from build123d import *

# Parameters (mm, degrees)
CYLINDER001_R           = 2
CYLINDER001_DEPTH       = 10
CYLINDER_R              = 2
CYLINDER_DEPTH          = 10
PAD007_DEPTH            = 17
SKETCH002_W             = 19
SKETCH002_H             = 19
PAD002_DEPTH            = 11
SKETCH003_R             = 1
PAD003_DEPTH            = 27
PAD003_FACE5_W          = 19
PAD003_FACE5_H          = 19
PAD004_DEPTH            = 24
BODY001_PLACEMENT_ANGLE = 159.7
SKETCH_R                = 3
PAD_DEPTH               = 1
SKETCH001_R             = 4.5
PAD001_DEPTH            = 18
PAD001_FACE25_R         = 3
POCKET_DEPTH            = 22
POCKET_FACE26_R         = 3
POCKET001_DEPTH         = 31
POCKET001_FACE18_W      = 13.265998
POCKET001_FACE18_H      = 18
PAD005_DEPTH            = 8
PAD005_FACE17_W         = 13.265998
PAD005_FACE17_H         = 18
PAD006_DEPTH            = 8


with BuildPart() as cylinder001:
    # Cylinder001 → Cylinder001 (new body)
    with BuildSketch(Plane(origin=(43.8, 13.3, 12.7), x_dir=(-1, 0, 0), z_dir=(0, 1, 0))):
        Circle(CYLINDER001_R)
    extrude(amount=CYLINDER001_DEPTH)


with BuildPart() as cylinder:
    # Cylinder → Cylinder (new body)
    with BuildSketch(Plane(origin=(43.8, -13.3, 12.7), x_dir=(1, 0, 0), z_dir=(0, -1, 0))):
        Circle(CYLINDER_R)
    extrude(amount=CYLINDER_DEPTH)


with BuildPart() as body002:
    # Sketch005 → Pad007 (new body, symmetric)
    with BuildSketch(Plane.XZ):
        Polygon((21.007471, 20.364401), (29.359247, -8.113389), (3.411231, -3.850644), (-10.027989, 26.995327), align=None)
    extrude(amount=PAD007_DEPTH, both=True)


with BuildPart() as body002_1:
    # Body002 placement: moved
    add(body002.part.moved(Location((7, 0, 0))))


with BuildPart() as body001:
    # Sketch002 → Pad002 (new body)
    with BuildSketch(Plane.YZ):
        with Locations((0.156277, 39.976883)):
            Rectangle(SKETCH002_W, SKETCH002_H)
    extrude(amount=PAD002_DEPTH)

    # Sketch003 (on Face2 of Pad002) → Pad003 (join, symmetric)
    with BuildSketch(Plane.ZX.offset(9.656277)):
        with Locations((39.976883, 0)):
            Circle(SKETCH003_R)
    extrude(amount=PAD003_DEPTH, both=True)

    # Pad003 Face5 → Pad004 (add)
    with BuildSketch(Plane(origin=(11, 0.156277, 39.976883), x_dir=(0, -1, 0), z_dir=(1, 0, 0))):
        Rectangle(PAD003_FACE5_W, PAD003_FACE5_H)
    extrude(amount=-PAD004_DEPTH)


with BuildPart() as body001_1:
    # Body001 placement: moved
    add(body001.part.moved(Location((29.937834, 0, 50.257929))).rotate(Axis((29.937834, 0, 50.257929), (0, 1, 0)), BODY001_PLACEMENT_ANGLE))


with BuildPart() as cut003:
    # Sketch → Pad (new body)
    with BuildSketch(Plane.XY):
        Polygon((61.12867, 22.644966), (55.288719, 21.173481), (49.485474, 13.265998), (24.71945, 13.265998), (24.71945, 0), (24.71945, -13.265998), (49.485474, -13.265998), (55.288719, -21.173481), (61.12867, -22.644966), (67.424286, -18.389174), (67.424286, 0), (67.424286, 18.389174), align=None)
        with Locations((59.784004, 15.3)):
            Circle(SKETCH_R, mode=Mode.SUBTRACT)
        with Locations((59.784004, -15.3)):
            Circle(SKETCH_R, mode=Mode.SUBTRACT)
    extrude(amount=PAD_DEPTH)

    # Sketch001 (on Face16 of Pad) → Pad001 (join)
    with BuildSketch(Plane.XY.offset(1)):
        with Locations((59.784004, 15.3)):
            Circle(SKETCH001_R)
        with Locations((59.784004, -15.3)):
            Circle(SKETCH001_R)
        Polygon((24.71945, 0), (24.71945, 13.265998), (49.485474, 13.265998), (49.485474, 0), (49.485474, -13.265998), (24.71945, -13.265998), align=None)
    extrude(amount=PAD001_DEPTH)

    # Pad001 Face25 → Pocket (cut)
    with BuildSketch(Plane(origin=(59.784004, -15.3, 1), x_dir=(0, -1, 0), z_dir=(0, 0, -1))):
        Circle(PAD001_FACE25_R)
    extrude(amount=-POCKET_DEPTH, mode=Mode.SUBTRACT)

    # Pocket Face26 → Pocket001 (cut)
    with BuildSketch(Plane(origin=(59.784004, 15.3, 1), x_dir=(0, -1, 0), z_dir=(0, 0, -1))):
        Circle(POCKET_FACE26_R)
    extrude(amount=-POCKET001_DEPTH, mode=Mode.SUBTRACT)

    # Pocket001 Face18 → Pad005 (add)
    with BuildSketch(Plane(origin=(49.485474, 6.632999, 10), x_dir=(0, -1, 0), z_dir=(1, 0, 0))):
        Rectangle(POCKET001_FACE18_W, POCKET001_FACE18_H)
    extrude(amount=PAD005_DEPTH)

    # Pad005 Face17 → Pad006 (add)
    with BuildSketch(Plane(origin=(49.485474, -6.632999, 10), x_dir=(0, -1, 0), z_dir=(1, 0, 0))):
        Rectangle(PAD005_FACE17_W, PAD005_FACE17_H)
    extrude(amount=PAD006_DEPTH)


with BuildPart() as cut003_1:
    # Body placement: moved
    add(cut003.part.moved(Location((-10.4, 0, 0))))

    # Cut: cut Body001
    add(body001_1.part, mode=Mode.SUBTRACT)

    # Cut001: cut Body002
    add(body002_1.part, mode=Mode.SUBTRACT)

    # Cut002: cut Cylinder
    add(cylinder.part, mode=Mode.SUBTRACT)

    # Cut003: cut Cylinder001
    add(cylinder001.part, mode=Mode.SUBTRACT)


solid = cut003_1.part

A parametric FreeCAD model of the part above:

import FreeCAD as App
import Part
import Sketcher

V = App.Vector

doc = App.newDocument("Part")
body = doc.addObject("PartDesign::Body", "Body")

# Sketch on XZ plane
sketch1 = body.newObject("Sketcher::SketchObject", "Sketch")
sketch1.AttachmentSupport = (doc.getObject("XZ_Plane"), [""])
sketch1.MapMode = "FlatFace"
sketch1.AttachmentOffset = App.Placement(V(0, 0, -13.3), App.Rotation())
sketch1.addGeometry(Part.Circle(V(43.8, 12.7, 0), V(0, 0, 1), 2), False)
sketch1.addConstraint([
    Sketcher.Constraint("Diameter", 0, 4.0),
    Sketcher.Constraint("DistanceX", -1, 1, 0, 3, 43.8),
    Sketcher.Constraint("DistanceY", -1, 1, 0, 3, 12.7),
])
pad1 = body.newObject("PartDesign::Pad", "Pad")
pad1.Profile = sketch1
pad1.Length = 10
pad1.Reversed = True
body2 = doc.addObject("PartDesign::Body", "Body001")

# Sketch on XZ plane
sketch2 = body2.newObject("Sketcher::SketchObject", "Sketch001")
sketch2.AttachmentSupport = (doc.getObject("XZ_Plane001"), [""])
sketch2.MapMode = "FlatFace"
sketch2.AttachmentOffset = App.Placement(V(0, 0, 13.3), App.Rotation())
sketch2.addGeometry(Part.Circle(V(43.8, 12.7, 0), V(0, 0, 1), 2), False)
sketch2.addConstraint([
    Sketcher.Constraint("Diameter", 0, 4.0),
    Sketcher.Constraint("DistanceX", -1, 1, 0, 3, 43.8),
    Sketcher.Constraint("DistanceY", -1, 1, 0, 3, 12.7),
])
pad2 = body2.newObject("PartDesign::Pad", "Pad001")
pad2.Profile = sketch2
pad2.Length = 10
body3 = doc.addObject("PartDesign::Body", "Body002")

# Sketch on XZ plane
sketch3 = body3.newObject("Sketcher::SketchObject", "Sketch002")
sketch3.AttachmentSupport = (doc.getObject("XZ_Plane002"), [""])
sketch3.MapMode = "FlatFace"
sketch3.addGeometry([
    Part.LineSegment(V(29, -8, 0), V(21, 20, 0)),
    Part.LineSegment(V(21, 20, 0), V(-10, 27, 0)),
    Part.LineSegment(V(-10, 27, 0), V(3, -4, 0)),
    Part.LineSegment(V(3, -4, 0), V(29, -8, 0)),
], False)
sketch3.addConstraint([
    Sketcher.Constraint("Coincident", 0, 2, 1, 1),
    Sketcher.Constraint("Coincident", 1, 2, 2, 1),
    Sketcher.Constraint("Coincident", 2, 2, 3, 1),
    Sketcher.Constraint("Coincident", 3, 2, 0, 1),
    Sketcher.Constraint("DistanceY", -1, 1, 0, 2, 20.364401),
    Sketcher.Constraint("Distance", 0, 29.677208),
    Sketcher.Constraint("DistanceX", -1, 1, 0, 2, 21.007471),
    Sketcher.Constraint("DistanceX", 1, 2, -1, 1, 10.027989),
    Sketcher.Constraint("DistanceX", -1, 1, 2, 2, 3.411231),
    Sketcher.Constraint("DistanceY", 3, 2, -1, 1, 8.113389),
    Sketcher.Constraint("DistanceY", 2, 2, 1, 2, 30.845971),
    Sketcher.Constraint("Distance", 1, 31.735925),
])
pad3 = body3.newObject("PartDesign::Pad", "Pad002")
pad3.Profile = sketch3
pad3.Length = 34
pad3.Midplane = True
body4 = doc.addObject("PartDesign::Body", "Body003")
doc.recompute()

body3.Placement = App.Placement(V(7, 0, 0), App.Rotation(V(0, 0, 1), 0))
boolean = body4.newObject("PartDesign::Boolean", "Boolean")
boolean.Type = "Fuse"
boolean.addObjects([body3])
body5 = doc.addObject("PartDesign::Body", "Body004")

# Sketch on YZ plane
sketch4 = body5.newObject("Sketcher::SketchObject", "Sketch003")
sketch4.AttachmentSupport = (doc.getObject("YZ_Plane004"), [""])
sketch4.MapMode = "FlatFace"
sketch4.addGeometry([
    Part.LineSegment(V(-9, 49, 0), V(-9, 30, 0)),
    Part.LineSegment(V(-9, 30, 0), V(10, 30, 0)),
    Part.LineSegment(V(10, 30, 0), V(10, 49, 0)),
    Part.LineSegment(V(10, 49, 0), V(-9, 49, 0)),
], False)
sketch4.addConstraint([
    Sketcher.Constraint("Coincident", 0, 2, 1, 1),
    Sketcher.Constraint("Coincident", 1, 2, 2, 1),
    Sketcher.Constraint("Coincident", 2, 2, 3, 1),
    Sketcher.Constraint("Coincident", 3, 2, 0, 1),
    Sketcher.Constraint("Vertical", 0),
    Sketcher.Constraint("Horizontal", 1),
    Sketcher.Constraint("Vertical", 2),
    Sketcher.Constraint("Horizontal", 3),
    Sketcher.Constraint("Equal", 3, 0),
    Sketcher.Constraint("DistanceX", 1, 1, 1, 2, 19.0),
    Sketcher.Constraint("DistanceX", 0, 2, -1, 1, 9.343723),
    Sketcher.Constraint("DistanceY", -1, 1, 0, 2, 30.476883),
])
pad4 = body5.newObject("PartDesign::Pad", "Pad003")
pad4.Profile = sketch4
pad4.Length = 11

# Sketch on XZ plane
sketch5 = body5.newObject("Sketcher::SketchObject", "Sketch004")
sketch5.AttachmentSupport = (doc.getObject("XZ_Plane004"), [""])
sketch5.MapMode = "FlatFace"
sketch5.AttachmentOffset = App.Placement(V(0, 0, -9.656277), App.Rotation())
sketch5.addGeometry(Part.Circle(V(0, 40, 0), V(0, 0, 1), 1), False)
sketch5.addConstraint([
    Sketcher.Constraint("PointOnObject", 0, 3, -2),
    Sketcher.Constraint("Diameter", 0, 2.0),
    Sketcher.Constraint("DistanceY", -1, 1, 0, 3, 39.976883),
])
pad5 = body5.newObject("PartDesign::Pad", "Pad004")
pad5.Profile = sketch5
pad5.Length = 54
pad5.Midplane = True

# Sketch on YZ plane
sketch6 = body5.newObject("Sketcher::SketchObject", "Sketch005")
sketch6.AttachmentSupport = (doc.getObject("YZ_Plane004"), [""])
sketch6.MapMode = "FlatFace"
sketch6.AttachmentOffset = App.Placement(V(0, 0, 11), App.Rotation())
sketch6.addGeometry([
    Part.LineSegment(V(10, 30, 0), V(10, 49, 0)),
    Part.LineSegment(V(10, 49, 0), V(-9, 49, 0)),
    Part.LineSegment(V(-9, 49, 0), V(-9, 30, 0)),
    Part.LineSegment(V(-9, 30, 0), V(10, 30, 0)),
], False)
sketch6.addConstraint([
    Sketcher.Constraint("Coincident", 0, 2, 1, 1),
    Sketcher.Constraint("Coincident", 1, 2, 2, 1),
    Sketcher.Constraint("Coincident", 2, 2, 3, 1),
    Sketcher.Constraint("Coincident", 3, 2, 0, 1),
    Sketcher.Constraint("Vertical", 0),
    Sketcher.Constraint("Horizontal", 1),
    Sketcher.Constraint("Vertical", 2),
    Sketcher.Constraint("Horizontal", 3),
    Sketcher.Constraint("Equal", 3, 0),
    Sketcher.Constraint("DistanceX", 1, 2, 1, 1, 19.0),
    Sketcher.Constraint("DistanceX", -1, 1, 0, 2, 9.656277),
    Sketcher.Constraint("DistanceY", -1, 1, 0, 2, 49.476883),
])
pad6 = body5.newObject("PartDesign::Pad", "Pad005")
pad6.Profile = sketch6
pad6.Length = 24
pad6.Reversed = True
body6 = doc.addObject("PartDesign::Body", "Body005")
doc.recompute()

body5.Placement = App.Placement(V(29.937834, 0, 50.257929), App.Rotation(V(0, 1, 0), 159.7))
boolean2 = body6.newObject("PartDesign::Boolean", "Boolean001")
boolean2.Type = "Fuse"
boolean2.addObjects([body5])
body7 = doc.addObject("PartDesign::Body", "Body006")

# Sketch on XY plane
sketch7 = body7.newObject("Sketcher::SketchObject", "Sketch006")
sketch7.AttachmentSupport = (doc.getObject("XY_Plane006"), [""])
sketch7.MapMode = "FlatFace"
sketch7.addGeometry([
    Part.LineSegment(V(61.1, 22.6, 0), V(55.3, 21.2, 0)),  # 0
    Part.LineSegment(V(55.3, 21.2, 0), V(49.5, 13.3, 0)),  # 1
    Part.LineSegment(V(49.5, 13.3, 0), V(24.7, 13.3, 0)),  # 2
    Part.LineSegment(V(24.7, 13.3, 0), V(24.7, -13.3, 0)),  # 3
    Part.LineSegment(V(24.7, -13.3, 0), V(49.5, -13.3, 0)),  # 4
    Part.LineSegment(V(49.5, -13.3, 0), V(55.3, -21.2, 0)),  # 5
    Part.LineSegment(V(55.3, -21.2, 0), V(61.1, -22.6, 0)),  # 6
    Part.LineSegment(V(61.1, -22.6, 0), V(67.4, -18.4, 0)),  # 7
    Part.LineSegment(V(67.4, -18.4, 0), V(67.4, 18.4, 0)),  # 8
    Part.LineSegment(V(67.4, 18.4, 0), V(61.1, 22.6, 0)),  # 9
    Part.Circle(V(59.8, -15.3, 0), V(0, 0, 1), 3),  # 10
    Part.Circle(V(59.8, 15.3, 0), V(0, 0, 1), 3),  # 11
], False)
sketch7.addConstraint([
    Sketcher.Constraint("Coincident", 0, 2, 1, 1),
    Sketcher.Constraint("Coincident", 1, 2, 2, 1),
    Sketcher.Constraint("Coincident", 2, 2, 3, 1),
    Sketcher.Constraint("Coincident", 3, 2, 4, 1),
    Sketcher.Constraint("Coincident", 4, 2, 5, 1),
    Sketcher.Constraint("Coincident", 5, 2, 6, 1),
    Sketcher.Constraint("Coincident", 6, 2, 7, 1),
    Sketcher.Constraint("Coincident", 7, 2, 8, 1),
    Sketcher.Constraint("Coincident", 8, 2, 9, 1),
    Sketcher.Constraint("Coincident", 9, 2, 0, 1),
    Sketcher.Constraint("Horizontal", 2),
    Sketcher.Constraint("Vertical", 3),
    Sketcher.Constraint("Horizontal", 4),
    Sketcher.Constraint("Vertical", 8),
    Sketcher.Constraint("Equal", 10, 11),
    Sketcher.Constraint("Symmetric", 10, 3, 11, 3, -1),
    Sketcher.Constraint("Symmetric", 1, 2, 4, 2, -1),
    Sketcher.Constraint("Symmetric", 0, 2, 5, 2, -1),
    Sketcher.Constraint("Symmetric", 6, 2, 9, 2, -1),
    Sketcher.Constraint("Equal", 7, 9),
    Sketcher.Constraint("Diameter", 10, 6.0),
    Sketcher.Constraint("DistanceY", 10, 3, -1, 1, 15.3),
    Sketcher.Constraint("DistanceY", 10, 3, 1, 2, 28.565998),
    Sketcher.Constraint("DistanceX", 2, 2, 2, 1, 24.766024),
    Sketcher.Constraint("DistanceY", 8, 1, 8, 2, 36.778348),
    Sketcher.Constraint("DistanceX", -1, 1, 0, 2, 55.288719),
    Sketcher.Constraint("DistanceY", -1, 1, 0, 2, 21.173481),
    Sketcher.Constraint("DistanceX", -1, 1, 2, 2, 24.71945),
    Sketcher.Constraint("DistanceX", -1, 1, 6, 2, 61.12867),
    Sketcher.Constraint("DistanceX", 1, 2, 11, 3, 10.29853),
    Sketcher.Constraint("DistanceY", 6, 2, 7, 2, 4.255792),
    Sketcher.Constraint("DistanceX", 10, 3, 7, 2, 7.640282),
])
pad7 = body7.newObject("PartDesign::Pad", "Pad006")
pad7.Profile = sketch7
pad7.Length = 1

# Sketch on XY plane
sketch8 = body7.newObject("Sketcher::SketchObject", "Sketch007")
sketch8.AttachmentSupport = (doc.getObject("XY_Plane006"), [""])
sketch8.MapMode = "FlatFace"
sketch8.AttachmentOffset = App.Placement(V(0, 0, 1), App.Rotation())
sketch8.addGeometry([
    Part.Circle(V(59.8, 15.3, 0), V(0, 0, 1), 4.5),  # 0
    Part.Circle(V(59.8, -15.3, 0), V(0, 0, 1), 4.5),  # 1
    Part.LineSegment(V(24.7, 13.3, 0), V(24.7, -13.3, 0)),  # 2
    Part.LineSegment(V(24.7, -13.3, 0), V(49.5, -13.3, 0)),  # 3
    Part.LineSegment(V(49.5, -13.3, 0), V(49.5, 13.3, 0)),  # 4
    Part.LineSegment(V(49.5, 13.3, 0), V(24.7, 13.3, 0)),  # 5
], False)
sketch8.addConstraint([
    Sketcher.Constraint("Coincident", 2, 2, 3, 1),
    Sketcher.Constraint("Coincident", 3, 2, 4, 1),
    Sketcher.Constraint("Coincident", 4, 2, 5, 1),
    Sketcher.Constraint("Coincident", 5, 2, 2, 1),
    Sketcher.Constraint("Vertical", 2),
    Sketcher.Constraint("Horizontal", 3),
    Sketcher.Constraint("Vertical", 4),
    Sketcher.Constraint("Horizontal", 5),
    Sketcher.Constraint("Equal", 0, 1),
    Sketcher.Constraint("Symmetric", 0, 3, 1, 3, -1),
    Sketcher.Constraint("Diameter", 0, 9.0),
    Sketcher.Constraint("DistanceY", -1, 1, 0, 3, 15.3),
    Sketcher.Constraint("DistanceY", 2, 2, 0, 3, 28.565998),
    Sketcher.Constraint("DistanceY", 1, 3, 4, 2, 28.565998),
    Sketcher.Constraint("DistanceX", 3, 1, 3, 2, 24.766024),
    Sketcher.Constraint("DistanceX", -1, 1, 2, 2, 24.71945),
    Sketcher.Constraint("DistanceX", 3, 2, 1, 3, 10.29853),
])
pad8 = body7.newObject("PartDesign::Pad", "Pad007")
pad8.Profile = sketch8
pad8.Length = 18

# Sketch on XY plane
sketch9 = body7.newObject("Sketcher::SketchObject", "Sketch008")
sketch9.AttachmentSupport = (doc.getObject("XY_Plane006"), [""])
sketch9.MapMode = "FlatFace"
sketch9.AttachmentOffset = App.Placement(V(0, 0, 1), App.Rotation())
sketch9.addGeometry(Part.Circle(V(59.8, -15.3, 0), V(0, 0, 1), 3), False)
sketch9.addConstraint([
    Sketcher.Constraint("Diameter", 0, 6.0),
    Sketcher.Constraint("DistanceY", 0, 3, -1, 1, 15.3),
    Sketcher.Constraint("DistanceX", -1, 1, 0, 3, 59.784004),
])
pocket1 = body7.newObject("PartDesign::Pocket", "Pocket")
pocket1.Profile = sketch9
pocket1.Length = 22
pocket1.Reversed = True

# Sketch on XY plane
sketch10 = body7.newObject("Sketcher::SketchObject", "Sketch009")
sketch10.AttachmentSupport = (doc.getObject("XY_Plane006"), [""])
sketch10.MapMode = "FlatFace"
sketch10.AttachmentOffset = App.Placement(V(0, 0, 1), App.Rotation())
sketch10.addGeometry(Part.Circle(V(59.8, 15.3, 0), V(0, 0, 1), 3), False)
sketch10.addConstraint([
    Sketcher.Constraint("Diameter", 0, 6.0),
    Sketcher.Constraint("DistanceY", -1, 1, 0, 3, 15.3),
    Sketcher.Constraint("DistanceX", -1, 1, 0, 3, 59.784004),
])
pocket2 = body7.newObject("PartDesign::Pocket", "Pocket001")
pocket2.Profile = sketch10
pocket2.Length = 31
pocket2.Reversed = True

# Sketch on YZ plane
sketch11 = body7.newObject("Sketcher::SketchObject", "Sketch010")
sketch11.AttachmentSupport = (doc.getObject("YZ_Plane006"), [""])
sketch11.MapMode = "FlatFace"
sketch11.AttachmentOffset = App.Placement(V(0, 0, 49.485474), App.Rotation())
sketch11.addGeometry([
    Part.LineSegment(V(13, 1, 0), V(13, 19, 0)),
    Part.LineSegment(V(13, 19, 0), V(0, 19, 0)),
    Part.LineSegment(V(0, 19, 0), V(0, 1, 0)),
    Part.LineSegment(V(0, 1, 0), V(13, 1, 0)),
], False)
sketch11.addConstraint([
    Sketcher.Constraint("Coincident", 0, 2, 1, 1),
    Sketcher.Constraint("Coincident", 1, 2, 2, 1),
    Sketcher.Constraint("Coincident", 2, 2, 3, 1),
    Sketcher.Constraint("Coincident", 3, 2, 0, 1),
    Sketcher.Constraint("Vertical", 0),
    Sketcher.Constraint("Horizontal", 1),
    Sketcher.Constraint("Vertical", 2),
    Sketcher.Constraint("Horizontal", 3),
    Sketcher.Constraint("PointOnObject", 1, 2, -2),
    Sketcher.Constraint("DistanceY", 0, 1, 0, 2, 18.0),
    Sketcher.Constraint("DistanceY", -1, 1, 0, 2, 19.0),
    Sketcher.Constraint("DistanceX", 1, 2, 1, 1, 13.265998),
])
pad9 = body7.newObject("PartDesign::Pad", "Pad008")
pad9.Profile = sketch11
pad9.Length = 8

# Sketch on YZ plane
sketch12 = body7.newObject("Sketcher::SketchObject", "Sketch011")
sketch12.AttachmentSupport = (doc.getObject("YZ_Plane006"), [""])
sketch12.MapMode = "FlatFace"
sketch12.AttachmentOffset = App.Placement(V(0, 0, 49.485474), App.Rotation())
sketch12.addGeometry([
    Part.LineSegment(V(0, 1, 0), V(0, 19, 0)),
    Part.LineSegment(V(0, 19, 0), V(-13, 19, 0)),
    Part.LineSegment(V(-13, 19, 0), V(-13, 1, 0)),
    Part.LineSegment(V(-13, 1, 0), V(0, 1, 0)),
], False)
sketch12.addConstraint([
    Sketcher.Constraint("Coincident", 0, 2, 1, 1),
    Sketcher.Constraint("Coincident", 1, 2, 2, 1),
    Sketcher.Constraint("Coincident", 2, 2, 3, 1),
    Sketcher.Constraint("Coincident", 3, 2, 0, 1),
    Sketcher.Constraint("Vertical", 0),
    Sketcher.Constraint("Horizontal", 1),
    Sketcher.Constraint("Vertical", 2),
    Sketcher.Constraint("Horizontal", 3),
    Sketcher.Constraint("PointOnObject", 0, 2, -2),
    Sketcher.Constraint("DistanceY", 0, 1, 0, 2, 18.0),
    Sketcher.Constraint("DistanceY", -1, 1, 0, 2, 19.0),
    Sketcher.Constraint("DistanceX", 1, 2, 1, 1, 13.265998),
])
pad10 = body7.newObject("PartDesign::Pad", "Pad009")
pad10.Profile = sketch12
pad10.Length = 8
body8 = doc.addObject("PartDesign::Body", "Body007")
doc.recompute()

body7.Placement = App.Placement(V(-10.4, 0, 0), App.Rotation(V(0, 0, 1), 0))
boolean3 = body8.newObject("PartDesign::Boolean", "Boolean002")
boolean3.Type = "Fuse"
boolean3.addObjects([body7])
doc.recompute()

boolean4 = body8.newObject("PartDesign::Boolean", "Boolean003")
boolean4.Type = "Cut"
boolean4.addObjects([body6])
doc.recompute()

boolean5 = body8.newObject("PartDesign::Boolean", "Boolean004")
boolean5.Type = "Cut"
boolean5.addObjects([body4])
doc.recompute()

boolean6 = body8.newObject("PartDesign::Boolean", "Boolean005")
boolean6.Type = "Cut"
boolean6.addObjects([body2])
doc.recompute()

boolean7 = body8.newObject("PartDesign::Boolean", "Boolean006")
boolean7.Type = "Cut"
boolean7.addObjects([body])

doc.recompute()
